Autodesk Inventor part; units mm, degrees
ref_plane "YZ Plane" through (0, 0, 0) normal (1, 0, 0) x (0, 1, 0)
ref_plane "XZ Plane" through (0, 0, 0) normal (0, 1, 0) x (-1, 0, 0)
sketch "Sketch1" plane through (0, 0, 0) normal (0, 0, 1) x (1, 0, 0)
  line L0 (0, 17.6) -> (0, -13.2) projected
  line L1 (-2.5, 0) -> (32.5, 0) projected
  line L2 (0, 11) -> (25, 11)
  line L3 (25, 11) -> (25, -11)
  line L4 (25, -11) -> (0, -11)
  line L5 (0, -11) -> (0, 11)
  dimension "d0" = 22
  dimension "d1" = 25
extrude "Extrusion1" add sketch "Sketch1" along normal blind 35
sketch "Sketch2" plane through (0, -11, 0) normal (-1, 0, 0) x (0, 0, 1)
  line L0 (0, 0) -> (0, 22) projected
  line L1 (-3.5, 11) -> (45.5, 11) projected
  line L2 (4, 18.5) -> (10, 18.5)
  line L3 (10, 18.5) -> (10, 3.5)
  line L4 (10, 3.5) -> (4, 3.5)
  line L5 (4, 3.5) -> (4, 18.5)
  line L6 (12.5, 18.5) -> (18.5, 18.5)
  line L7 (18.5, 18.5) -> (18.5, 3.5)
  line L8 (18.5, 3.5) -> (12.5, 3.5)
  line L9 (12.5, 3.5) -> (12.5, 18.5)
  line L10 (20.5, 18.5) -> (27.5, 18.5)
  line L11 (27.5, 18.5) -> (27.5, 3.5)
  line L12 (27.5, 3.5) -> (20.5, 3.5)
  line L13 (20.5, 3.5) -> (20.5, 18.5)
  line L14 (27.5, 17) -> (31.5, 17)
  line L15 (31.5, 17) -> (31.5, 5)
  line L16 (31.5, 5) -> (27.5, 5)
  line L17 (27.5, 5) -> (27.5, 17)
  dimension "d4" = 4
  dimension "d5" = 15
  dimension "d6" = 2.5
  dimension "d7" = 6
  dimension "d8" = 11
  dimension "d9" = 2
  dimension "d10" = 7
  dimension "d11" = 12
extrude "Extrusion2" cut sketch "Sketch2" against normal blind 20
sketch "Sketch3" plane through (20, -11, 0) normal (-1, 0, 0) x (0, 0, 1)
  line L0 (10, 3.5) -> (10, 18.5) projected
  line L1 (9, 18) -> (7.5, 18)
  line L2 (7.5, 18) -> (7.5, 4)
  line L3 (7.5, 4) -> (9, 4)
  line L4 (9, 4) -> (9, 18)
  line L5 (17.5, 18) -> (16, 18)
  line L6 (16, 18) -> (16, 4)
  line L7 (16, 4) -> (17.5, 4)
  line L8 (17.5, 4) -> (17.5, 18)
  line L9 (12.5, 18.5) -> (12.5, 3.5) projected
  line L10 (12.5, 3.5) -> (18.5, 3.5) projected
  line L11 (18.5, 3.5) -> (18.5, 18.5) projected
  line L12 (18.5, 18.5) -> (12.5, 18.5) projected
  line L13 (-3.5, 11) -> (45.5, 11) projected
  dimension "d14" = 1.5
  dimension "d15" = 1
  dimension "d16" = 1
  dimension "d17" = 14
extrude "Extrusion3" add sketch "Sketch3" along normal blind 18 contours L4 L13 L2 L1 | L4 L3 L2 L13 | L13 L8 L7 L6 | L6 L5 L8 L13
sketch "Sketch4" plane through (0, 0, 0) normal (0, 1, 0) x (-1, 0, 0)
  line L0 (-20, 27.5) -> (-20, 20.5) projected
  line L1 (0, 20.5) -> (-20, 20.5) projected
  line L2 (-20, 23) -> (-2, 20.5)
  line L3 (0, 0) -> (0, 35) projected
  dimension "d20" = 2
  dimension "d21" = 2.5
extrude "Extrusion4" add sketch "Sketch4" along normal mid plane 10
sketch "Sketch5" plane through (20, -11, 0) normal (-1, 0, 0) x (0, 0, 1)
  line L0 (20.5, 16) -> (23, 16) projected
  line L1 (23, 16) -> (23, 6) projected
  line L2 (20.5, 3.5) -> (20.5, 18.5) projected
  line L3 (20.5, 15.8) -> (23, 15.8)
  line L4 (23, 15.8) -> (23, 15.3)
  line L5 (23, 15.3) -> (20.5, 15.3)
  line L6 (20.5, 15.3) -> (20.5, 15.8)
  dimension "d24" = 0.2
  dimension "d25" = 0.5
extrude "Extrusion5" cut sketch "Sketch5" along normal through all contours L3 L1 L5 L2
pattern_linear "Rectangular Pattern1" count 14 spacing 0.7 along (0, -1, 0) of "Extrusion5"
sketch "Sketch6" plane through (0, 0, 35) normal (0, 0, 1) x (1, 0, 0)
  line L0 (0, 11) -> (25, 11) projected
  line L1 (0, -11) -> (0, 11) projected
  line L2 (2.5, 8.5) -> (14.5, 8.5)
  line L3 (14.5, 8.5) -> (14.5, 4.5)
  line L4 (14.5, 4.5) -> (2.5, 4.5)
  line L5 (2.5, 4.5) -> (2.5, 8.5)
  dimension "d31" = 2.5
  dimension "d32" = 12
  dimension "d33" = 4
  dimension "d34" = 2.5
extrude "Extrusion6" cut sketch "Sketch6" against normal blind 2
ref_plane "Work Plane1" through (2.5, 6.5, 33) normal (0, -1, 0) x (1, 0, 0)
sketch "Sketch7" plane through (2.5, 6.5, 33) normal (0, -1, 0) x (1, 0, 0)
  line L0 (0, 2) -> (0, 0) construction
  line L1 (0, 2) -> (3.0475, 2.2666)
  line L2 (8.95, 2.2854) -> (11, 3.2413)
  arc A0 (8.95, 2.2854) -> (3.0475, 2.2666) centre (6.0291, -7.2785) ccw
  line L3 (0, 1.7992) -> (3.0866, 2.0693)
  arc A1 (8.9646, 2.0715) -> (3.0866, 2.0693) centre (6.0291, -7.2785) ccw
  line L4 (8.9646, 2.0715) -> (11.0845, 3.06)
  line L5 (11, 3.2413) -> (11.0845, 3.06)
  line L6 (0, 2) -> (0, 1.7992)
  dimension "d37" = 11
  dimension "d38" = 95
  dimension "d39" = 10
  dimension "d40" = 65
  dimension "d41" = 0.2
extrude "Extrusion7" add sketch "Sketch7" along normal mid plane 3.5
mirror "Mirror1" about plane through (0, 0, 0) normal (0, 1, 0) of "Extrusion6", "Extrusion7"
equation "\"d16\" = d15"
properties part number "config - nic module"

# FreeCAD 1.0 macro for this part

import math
import FreeCAD as App
import Part
import Sketcher
from FreeCAD import Vector
Q = App.Units.Quantity


def add_polygon(sketch, points):
    """Adds a closed chain of lines whose ends are joined by coincident constraints."""
    first, n = sketch.GeometryCount, len(points)
    for a, b in zip(points, points[1:] + points[:1]):
        sketch.addGeometry(Part.LineSegment(App.Vector(*a, 0), App.Vector(*b, 0)), False)
    for i in range(n):
        sketch.addConstraint(Sketcher.Constraint("Coincident", first + i, 2, first + (i + 1) % n, 1))

doc = App.newDocument("Part")
body = doc.addObject("PartDesign::Body", "Body")

sketch1 = body.newObject("Sketcher::SketchObject", "Sketch")
sketch1.AttachmentSupport = (doc.getObject("XY_Plane"), [""])
sketch1.MapMode = "FlatFace"
add_polygon(sketch1, [(25, 11), (0, 11), (0, -11), (25, -11)])
sketch1.addConstraint([
    Sketcher.Constraint("Horizontal", 0),
    Sketcher.Constraint("Vertical", 1),
    Sketcher.Constraint("Horizontal", 2),
    Sketcher.Constraint("Vertical", 3),
    Sketcher.Constraint("Symmetric", 0, 2, 1, 2, -1, 1),
    Sketcher.Constraint("DistanceX", 0, 2, 0, 1, Q("25 mm")),
    Sketcher.Constraint("DistanceY", 1, 2, 1, 1, Q("22 mm")),
])
pad1 = body.newObject("PartDesign::Pad", "Pad")
pad1.Profile = sketch1
pad1.Length = 35

sketch2 = body.newObject("Sketcher::SketchObject", "Sketch001")
sketch2.AttachmentSupport = (doc.getObject("YZ_Plane"), [""])
sketch2.MapMode = "FlatFace"
add_polygon(sketch2, [(7.5, 4), (-7.5, 4), (-7.5, 10), (7.5, 10)])
add_polygon(sketch2, [(7.5, 20.5), (-7.5, 20.5), (-7.5, 27.5), (-6, 27.5), (-6, 31.5), (6, 31.5), (6, 27.5), (7.5, 27.5)])
add_polygon(sketch2, [(7.5, 12.5), (-7.5, 12.5), (-7.5, 18.5), (7.5, 18.5)])
sketch2.addConstraint([
    Sketcher.Constraint("Horizontal", 0),
    Sketcher.Constraint("Vertical", 1),
    Sketcher.Constraint("Horizontal", 2),
    Sketcher.Constraint("Vertical", 3),
    Sketcher.Constraint("Horizontal", 4),
    Sketcher.Constraint("Vertical", 5),
    Sketcher.Constraint("Horizontal", 6),
    Sketcher.Constraint("Vertical", 7),
    Sketcher.Constraint("Horizontal", 8),
    Sketcher.Constraint("Vertical", 9),
    Sketcher.Constraint("Horizontal", 10),
    Sketcher.Constraint("Vertical", 11),
    Sketcher.Constraint("Horizontal", 12),
    Sketcher.Constraint("Vertical", 13),
    Sketcher.Constraint("Horizontal", 14),
    Sketcher.Constraint("Vertical", 15),
    Sketcher.Constraint("Symmetric", 6, 2, 9, 2, -2),
    Sketcher.Constraint("Vertical", 1, 2, 4, 2),
    Sketcher.Constraint("Vertical", 3, 2, 10, 2),
    Sketcher.Constraint("Vertical", 5, 2, 12, 2),
    Sketcher.Constraint("Vertical", 11, 2, 14, 2),
    Sketcher.Constraint("Equal", 6, 10),
    Sketcher.Constraint("Equal", 3, 13),
    Sketcher.Constraint("DistanceX", 0, 2, 0, 1, Q("15 mm")),
    Sketcher.Constraint("DistanceX", 8, 1, 8, 2, Q("12 mm")),
    Sketcher.Constraint("DistanceY", 1, 1, 1, 2, Q("6 mm")),
    Sketcher.Constraint("DistanceY", 5, 1, 5, 2, Q("7 mm")),
    Sketcher.Constraint("DistanceY", 7, 1, 7, 2, Q("4 mm")),
    Sketcher.Constraint("DistanceY", -1, 1, 0, 2, Q("4 mm")),
    Sketcher.Constraint("DistanceY", 12, 2, 5, 2, Q("15 mm")),
    Sketcher.Constraint("DistanceY", 1, 2, 12, 2, Q("2.5 mm")),
])
pocket1 = body.newObject("PartDesign::Pocket", "Pocket")
pocket1.Profile = sketch2
pocket1.Length = 20
pocket1.Reversed = True

sketch3 = body.newObject("Sketcher::SketchObject", "Sketch002")
sketch3.AttachmentSupport = (doc.getObject("YZ_Plane"), [""])
sketch3.MapMode = "FlatFace"
sketch3.AttachmentOffset = App.Placement(Vector(0, 0, 20), App.Rotation())
add_polygon(sketch3, [(7, 9), (7, 7.5), (-7, 7.5), (-7, 9)])
add_polygon(sketch3, [(-7, 17.5), (7, 17.5), (7, 16), (-7, 16)])
sketch3.addConstraint([
    Sketcher.Constraint("Vertical", 0),
    Sketcher.Constraint("Horizontal", 1),
    Sketcher.Constraint("Vertical", 2),
    Sketcher.Constraint("Horizontal", 3),
    Sketcher.Constraint("Horizontal", 4),
    Sketcher.Constraint("Vertical", 5),
    Sketcher.Constraint("Horizontal", 6),
    Sketcher.Constraint("Vertical", 7),
    Sketcher.Constraint("Vertical", 3, 2, 4, 2),
    Sketcher.Constraint("Vertical", 2, 2, 6, 2),
    Sketcher.Constraint("Equal", 2, 5),
    Sketcher.Constraint("DistanceX", 1, 2, 1, 1, Q("14 mm")),
    Sketcher.Constraint("DistanceY", 0, 2, 0, 1, Q("1.5 mm")),
    Sketcher.Constraint("DistanceX", -1, 1, 0, 2, Q("7 mm")),
    Sketcher.Constraint("DistanceY", -1, 1, 2, 2, Q("9 mm")),
    Sketcher.Constraint("DistanceY", -1, 1, 5, 2, Q("16 mm")),
])
pad2 = body.newObject("PartDesign::Pad", "Pad001")
pad2.Profile = sketch3
pad2.Length = 18
pad2.Reversed = True

sketch4 = body.newObject("Sketcher::SketchObject", "Sketch003")
sketch4.AttachmentSupport = (doc.getObject("XZ_Plane"), [""])
sketch4.MapMode = "FlatFace"
add_polygon(sketch4, [(2, 20.5), (20, 23), (20, 20.5)])
sketch4.addConstraint([
    Sketcher.Constraint("Vertical", 1),
    Sketcher.Constraint("Horizontal", 2),
    Sketcher.Constraint("DistanceY", 1, 2, 1, 1, Q("2.5 mm")),
    Sketcher.Constraint("DistanceX", -1, 1, 2, 2, Q("2 mm")),
    Sketcher.Constraint("DistanceX", 2, 2, 2, 1, Q("18 mm")),
    Sketcher.Constraint("DistanceY", -1, 1, 0, 2, Q("23 mm")),
])
pad3 = body.newObject("PartDesign::Pad", "Pad002")
pad3.Profile = sketch4
pad3.Length = 10
pad3.Midplane = True

sketch5 = body.newObject("Sketcher::SketchObject", "Sketch004")
sketch5.AttachmentSupport = (doc.getObject("YZ_Plane"), [""])
sketch5.MapMode = "FlatFace"
sketch5.AttachmentOffset = App.Placement(Vector(0, 0, 20), App.Rotation())
add_polygon(sketch5, [(4.8, 23), (4.8, 20.5), (4.3, 20.5), (4.3, 23)])
sketch5.addConstraint([
    Sketcher.Constraint("Vertical", 0),
    Sketcher.Constraint("Horizontal", 1),
    Sketcher.Constraint("Vertical", 2),
    Sketcher.Constraint("Horizontal", 3),
    Sketcher.Constraint("DistanceX", 1, 2, 1, 1, Q("0.5 mm")),
    Sketcher.Constraint("DistanceY", 0, 2, 0, 1, Q("2.5 mm")),
    Sketcher.Constraint("DistanceY", -1, 1, 2, 2, Q("23 mm")),
    Sketcher.Constraint("DistanceX", -1, 1, 0, 2, Q("4.8 mm")),
])
pocket2 = body.newObject("PartDesign::Pocket", "Pocket001")
pocket2.Profile = sketch5
pocket2.Type = "ThroughAll"
doc.recompute()

linearpattern = body.newObject("PartDesign::LinearPattern", "LinearPattern")
linearpattern.Originals = [pocket2]
linearpattern.Direction = (doc.getObject("Y_Axis"), [""])
linearpattern.Mode = "offset"
linearpattern.Offset = 0.7
linearpattern.Occurrences = 14
linearpattern.Reversed = True
body.Tip = linearpattern

sketch6 = body.newObject("Sketcher::SketchObject", "Sketch005")
sketch6.AttachmentSupport = (doc.getObject("XY_Plane"), [""])
sketch6.MapMode = "FlatFace"
sketch6.AttachmentOffset = App.Placement(Vector(0, 0, 35), App.Rotation())
add_polygon(sketch6, [(14.5, 8.5), (2.5, 8.5), (2.5, 4.5), (14.5, 4.5)])
sketch6.addConstraint([
    Sketcher.Constraint("Horizontal", 0),
    Sketcher.Constraint("Vertical", 1),
    Sketcher.Constraint("Horizontal", 2),
    Sketcher.Constraint("Vertical", 3),
    Sketcher.Constraint("DistanceX", 0, 2, 0, 1, Q("12 mm")),
    Sketcher.Constraint("DistanceY", 1, 2, 1, 1, Q("4 mm")),
    Sketcher.Constraint("DistanceX", -1, 1, 0, 2, Q("2.5 mm")),
    Sketcher.Constraint("DistanceY", -1, 1, 0, 2, Q("8.5 mm")),
])
pocket3 = body.newObject("PartDesign::Pocket", "Pocket002")
pocket3.Profile = sketch6
pocket3.Length = 2

sketch7 = body.newObject("Sketcher::SketchObject", "Sketch006")
sketch7.AttachmentSupport = (doc.getObject("XZ_Plane"), [""])
sketch7.MapMode = "FlatFace"
sketch7.AttachmentOffset = App.Placement(Vector(0, 0, -6.5), App.Rotation())
sketch7.addGeometry([
    Part.LineSegment(Vector(5.55, 35.27, 0), Vector(2.5, 35, 0)),
    Part.LineSegment(Vector(2.5, 35, 0), Vector(2.5, 34.8, 0)),
    Part.LineSegment(Vector(2.5, 34.8, 0), Vector(5.59, 35.07, 0)),
    Part.ArcOfCircle(Part.Circle(Vector(8.53, 25.72, 0), Vector(0, 0, 1), 9.8), math.radians(73), math.radians(107)),
    Part.LineSegment(Vector(11.46, 35.07, 0), Vector(13.58, 36.06, 0)),
    Part.LineSegment(Vector(13.58, 36.06, 0), Vector(13.5, 36.24, 0)),
    Part.LineSegment(Vector(13.5, 36.24, 0), Vector(11.45, 35.29, 0)),
    Part.ArcOfCircle(Part.Circle(Vector(8.53, 25.72, 0), Vector(0, 0, 1), 10), math.radians(73), math.radians(107)),
], False)
sketch7.addConstraint([
    Sketcher.Constraint("Coincident", 0, 2, 1, 1),
    Sketcher.Constraint("Coincident", 1, 2, 2, 1),
    Sketcher.Constraint("Coincident", 2, 2, 3, 2),
    Sketcher.Constraint("Coincident", 3, 1, 4, 1),
    Sketcher.Constraint("Coincident", 4, 2, 5, 1),
    Sketcher.Constraint("Coincident", 5, 2, 6, 1),
    Sketcher.Constraint("Coincident", 6, 2, 7, 1),
    Sketcher.Constraint("Coincident", 7, 2, 0, 1),
    Sketcher.Constraint("Vertical", 1),
    Sketcher.Constraint("Coincident", 7, 3, 3, 3),
    Sketcher.Constraint("Parallel", 0, 2),
    Sketcher.Constraint("Perpendicular", 4, 5),
    Sketcher.Constraint("Perpendicular", 5, 6),
    Sketcher.Constraint("Radius", 7, Q("10 mm")),
    Sketcher.Constraint("DistanceX", 0, 2, 5, 2, Q("11 mm")),
    Sketcher.Constraint("Distance", 5, Q("0.2 mm")),
    Sketcher.Constraint("Radius", 3, Q("9.8 mm")),
    Sketcher.Constraint("Angle", 0, Q("-175.0004 deg")),
    Sketcher.Constraint("Angle", 4, Q("24.9994 deg")),
    Sketcher.Constraint("DistanceY", -1, 1, 0, 2, Q("35 mm")),
    Sketcher.Constraint("DistanceX", -1, 1, 0, 2, Q("2.5 mm")),
    Sketcher.Constraint("DistanceY", -1, 1, 4, 2, Q("36.06 mm")),
    Sketcher.Constraint("DistanceX", -1, 1, 6, 2, Q("11.45 mm")),
    Sketcher.Constraint("DistanceY", 1, 2, 2, 2, Q("0.27 mm")),
    Sketcher.Constraint("DistanceY", 3, 3, 3, 1, Q("9.35 mm")),
])
pad4 = body.newObject("PartDesign::Pad", "Pad003")
pad4.Profile = sketch7
pad4.Length = 3.5
pad4.Midplane = True
doc.recompute()

mirrored = body.newObject("PartDesign::Mirrored", "Mirrored")
mirrored.Originals = [pocket3, pad4]
mirrored.MirrorPlane = (doc.getObject("XZ_Plane"), [""])
body.Tip = mirrored

doc.recompute()
